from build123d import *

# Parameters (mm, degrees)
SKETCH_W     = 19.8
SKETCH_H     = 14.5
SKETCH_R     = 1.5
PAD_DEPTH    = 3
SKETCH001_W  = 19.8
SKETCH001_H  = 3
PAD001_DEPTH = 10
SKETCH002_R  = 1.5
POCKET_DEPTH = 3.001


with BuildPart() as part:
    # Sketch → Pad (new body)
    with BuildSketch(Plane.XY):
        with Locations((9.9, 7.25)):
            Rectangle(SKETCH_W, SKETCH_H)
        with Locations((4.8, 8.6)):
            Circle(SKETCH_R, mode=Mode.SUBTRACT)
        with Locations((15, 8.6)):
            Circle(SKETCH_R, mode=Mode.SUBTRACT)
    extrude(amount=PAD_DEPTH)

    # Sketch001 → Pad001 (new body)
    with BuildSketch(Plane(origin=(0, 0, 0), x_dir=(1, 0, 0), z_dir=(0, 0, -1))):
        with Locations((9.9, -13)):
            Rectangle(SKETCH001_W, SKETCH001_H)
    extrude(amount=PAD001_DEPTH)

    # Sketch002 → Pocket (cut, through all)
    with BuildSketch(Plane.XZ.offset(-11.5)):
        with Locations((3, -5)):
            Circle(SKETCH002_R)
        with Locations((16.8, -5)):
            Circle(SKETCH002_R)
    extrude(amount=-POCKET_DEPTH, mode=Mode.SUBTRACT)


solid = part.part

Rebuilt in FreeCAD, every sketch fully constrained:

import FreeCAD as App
import Part
import Sketcher

doc = App.newDocument("Part")
body = doc.addObject("PartDesign::Body", "Body")

sketch1 = body.newObject("Sketcher::SketchObject", "Sketch")
sketch1.AttachmentSupport = (doc.getObject("XY_Plane"), [""])
sketch1.MapMode = "FlatFace"
sketch1.addGeometry([
    Part.LineSegment(App.Vector(0, 14.5, 0), App.Vector(0, 0, 0)),
    Part.LineSegment(App.Vector(0, 0, 0), App.Vector(19.8, 0, 0)),
    Part.LineSegment(App.Vector(19.8, 0, 0), App.Vector(19.8, 14.5, 0)),
    Part.LineSegment(App.Vector(19.8, 14.5, 0), App.Vector(0, 14.5, 0)),
    Part.Circle(App.Vector(4.8, 8.6, 0), App.Vector(0, 0, 1), 1.5),
    Part.Circle(App.Vector(15, 8.6, 0), App.Vector(0, 0, 1), 1.5),
], False)
sketch1.addConstraint([
    Sketcher.Constraint("Coincident", 0, 2, 1, 1),
    Sketcher.Constraint("Coincident", 1, 2, 2, 1),
    Sketcher.Constraint("Coincident", 2, 2, 3, 1),
    Sketcher.Constraint("Coincident", 3, 2, 0, 1),
    Sketcher.Constraint("Vertical", 0),
    Sketcher.Constraint("Horizontal", 1),
    Sketcher.Constraint("Vertical", 2),
    Sketcher.Constraint("Horizontal", 3),
    Sketcher.Constraint("Coincident", 0, 2, -1, 1),
    Sketcher.Constraint("Equal", 4, 5),
    Sketcher.Constraint("Horizontal", 4, 3, 5, 3),
    Sketcher.Constraint("Diameter", 4, 3.0),
    Sketcher.Constraint("DistanceX", 1, 1, 1, 2, 19.8),
    Sketcher.Constraint("DistanceY", 0, 2, 0, 1, 14.5),
    Sketcher.Constraint("DistanceX", -1, 1, 5, 3, 15.0),
    Sketcher.Constraint("DistanceX", 4, 3, 1, 2, 15.0),
    Sketcher.Constraint("DistanceY", -1, 1, 4, 3, 8.6),
])
pad1 = body.newObject("PartDesign::Pad", "Pad")
pad1.Profile = sketch1
pad1.Length = 3

sketch2 = body.newObject("Sketcher::SketchObject", "Sketch001")
sketch2.AttachmentSupport = (doc.getObject("XY_Plane"), [""])
sketch2.MapMode = "FlatFace"
sketch2.addGeometry([
    Part.LineSegment(App.Vector(0, 11.5, 0), App.Vector(0, 14.5, 0)),
    Part.LineSegment(App.Vector(0, 14.5, 0), App.Vector(19.8, 14.5, 0)),
    Part.LineSegment(App.Vector(19.8, 14.5, 0), App.Vector(19.8, 11.5, 0)),
    Part.LineSegment(App.Vector(19.8, 11.5, 0), App.Vector(0, 11.5, 0)),
], False)
sketch2.addConstraint([
    Sketcher.Constraint("Coincident", 0, 2, 1, 1),
    Sketcher.Constraint("Coincident", 1, 2, 2, 1),
    Sketcher.Constraint("Coincident", 2, 2, 3, 1),
    Sketcher.Constraint("Coincident", 3, 2, 0, 1),
    Sketcher.Constraint("Vertical", 0),
    Sketcher.Constraint("Horizontal", 1),
    Sketcher.Constraint("Vertical", 2),
    Sketcher.Constraint("Horizontal", 3),
    Sketcher.Constraint("PointOnObject", 0, 2, -2),
    Sketcher.Constraint("DistanceY", 0, 1, 0, 2, 3.0),
    Sketcher.Constraint("DistanceX", 1, 1, 1, 2, 19.8),
    Sketcher.Constraint("DistanceY", -1, 1, 0, 2, 14.5),
])
pad2 = body.newObject("PartDesign::Pad", "Pad001")
pad2.Profile = sketch2
pad2.Length = 10
pad2.Reversed = True

sketch3 = body.newObject("Sketcher::SketchObject", "Sketch002")
sketch3.AttachmentSupport = (doc.getObject("XZ_Plane"), [""])
sketch3.MapMode = "FlatFace"
sketch3.AttachmentOffset = App.Placement(App.Vector(0, 0, -11.5), App.Rotation())
sketch3.addGeometry([
    Part.Circle(App.Vector(3, -5, 0), App.Vector(0, 0, 1), 1.5),
    Part.Circle(App.Vector(16.8, -5, 0), App.Vector(0, 0, 1), 1.5),
], False)
sketch3.addConstraint([
    Sketcher.Constraint("Equal", 0, 1),
    Sketcher.Constraint("Horizontal", 0, 3, 1, 3),
    Sketcher.Constraint("Diameter", 0, 3.0),
    Sketcher.Constraint("DistanceX", -1, 1, 0, 3, 3.0),
    Sketcher.Constraint("DistanceY", 0, 3, -1, 1, 5.0),
    Sketcher.Constraint("DistanceX", -1, 1, 1, 3, 16.8),
])
pocket1 = body.newObject("PartDesign::Pocket", "Pocket")
pocket1.Profile = sketch3
pocket1.Type = "ThroughAll"

doc.recompute()
